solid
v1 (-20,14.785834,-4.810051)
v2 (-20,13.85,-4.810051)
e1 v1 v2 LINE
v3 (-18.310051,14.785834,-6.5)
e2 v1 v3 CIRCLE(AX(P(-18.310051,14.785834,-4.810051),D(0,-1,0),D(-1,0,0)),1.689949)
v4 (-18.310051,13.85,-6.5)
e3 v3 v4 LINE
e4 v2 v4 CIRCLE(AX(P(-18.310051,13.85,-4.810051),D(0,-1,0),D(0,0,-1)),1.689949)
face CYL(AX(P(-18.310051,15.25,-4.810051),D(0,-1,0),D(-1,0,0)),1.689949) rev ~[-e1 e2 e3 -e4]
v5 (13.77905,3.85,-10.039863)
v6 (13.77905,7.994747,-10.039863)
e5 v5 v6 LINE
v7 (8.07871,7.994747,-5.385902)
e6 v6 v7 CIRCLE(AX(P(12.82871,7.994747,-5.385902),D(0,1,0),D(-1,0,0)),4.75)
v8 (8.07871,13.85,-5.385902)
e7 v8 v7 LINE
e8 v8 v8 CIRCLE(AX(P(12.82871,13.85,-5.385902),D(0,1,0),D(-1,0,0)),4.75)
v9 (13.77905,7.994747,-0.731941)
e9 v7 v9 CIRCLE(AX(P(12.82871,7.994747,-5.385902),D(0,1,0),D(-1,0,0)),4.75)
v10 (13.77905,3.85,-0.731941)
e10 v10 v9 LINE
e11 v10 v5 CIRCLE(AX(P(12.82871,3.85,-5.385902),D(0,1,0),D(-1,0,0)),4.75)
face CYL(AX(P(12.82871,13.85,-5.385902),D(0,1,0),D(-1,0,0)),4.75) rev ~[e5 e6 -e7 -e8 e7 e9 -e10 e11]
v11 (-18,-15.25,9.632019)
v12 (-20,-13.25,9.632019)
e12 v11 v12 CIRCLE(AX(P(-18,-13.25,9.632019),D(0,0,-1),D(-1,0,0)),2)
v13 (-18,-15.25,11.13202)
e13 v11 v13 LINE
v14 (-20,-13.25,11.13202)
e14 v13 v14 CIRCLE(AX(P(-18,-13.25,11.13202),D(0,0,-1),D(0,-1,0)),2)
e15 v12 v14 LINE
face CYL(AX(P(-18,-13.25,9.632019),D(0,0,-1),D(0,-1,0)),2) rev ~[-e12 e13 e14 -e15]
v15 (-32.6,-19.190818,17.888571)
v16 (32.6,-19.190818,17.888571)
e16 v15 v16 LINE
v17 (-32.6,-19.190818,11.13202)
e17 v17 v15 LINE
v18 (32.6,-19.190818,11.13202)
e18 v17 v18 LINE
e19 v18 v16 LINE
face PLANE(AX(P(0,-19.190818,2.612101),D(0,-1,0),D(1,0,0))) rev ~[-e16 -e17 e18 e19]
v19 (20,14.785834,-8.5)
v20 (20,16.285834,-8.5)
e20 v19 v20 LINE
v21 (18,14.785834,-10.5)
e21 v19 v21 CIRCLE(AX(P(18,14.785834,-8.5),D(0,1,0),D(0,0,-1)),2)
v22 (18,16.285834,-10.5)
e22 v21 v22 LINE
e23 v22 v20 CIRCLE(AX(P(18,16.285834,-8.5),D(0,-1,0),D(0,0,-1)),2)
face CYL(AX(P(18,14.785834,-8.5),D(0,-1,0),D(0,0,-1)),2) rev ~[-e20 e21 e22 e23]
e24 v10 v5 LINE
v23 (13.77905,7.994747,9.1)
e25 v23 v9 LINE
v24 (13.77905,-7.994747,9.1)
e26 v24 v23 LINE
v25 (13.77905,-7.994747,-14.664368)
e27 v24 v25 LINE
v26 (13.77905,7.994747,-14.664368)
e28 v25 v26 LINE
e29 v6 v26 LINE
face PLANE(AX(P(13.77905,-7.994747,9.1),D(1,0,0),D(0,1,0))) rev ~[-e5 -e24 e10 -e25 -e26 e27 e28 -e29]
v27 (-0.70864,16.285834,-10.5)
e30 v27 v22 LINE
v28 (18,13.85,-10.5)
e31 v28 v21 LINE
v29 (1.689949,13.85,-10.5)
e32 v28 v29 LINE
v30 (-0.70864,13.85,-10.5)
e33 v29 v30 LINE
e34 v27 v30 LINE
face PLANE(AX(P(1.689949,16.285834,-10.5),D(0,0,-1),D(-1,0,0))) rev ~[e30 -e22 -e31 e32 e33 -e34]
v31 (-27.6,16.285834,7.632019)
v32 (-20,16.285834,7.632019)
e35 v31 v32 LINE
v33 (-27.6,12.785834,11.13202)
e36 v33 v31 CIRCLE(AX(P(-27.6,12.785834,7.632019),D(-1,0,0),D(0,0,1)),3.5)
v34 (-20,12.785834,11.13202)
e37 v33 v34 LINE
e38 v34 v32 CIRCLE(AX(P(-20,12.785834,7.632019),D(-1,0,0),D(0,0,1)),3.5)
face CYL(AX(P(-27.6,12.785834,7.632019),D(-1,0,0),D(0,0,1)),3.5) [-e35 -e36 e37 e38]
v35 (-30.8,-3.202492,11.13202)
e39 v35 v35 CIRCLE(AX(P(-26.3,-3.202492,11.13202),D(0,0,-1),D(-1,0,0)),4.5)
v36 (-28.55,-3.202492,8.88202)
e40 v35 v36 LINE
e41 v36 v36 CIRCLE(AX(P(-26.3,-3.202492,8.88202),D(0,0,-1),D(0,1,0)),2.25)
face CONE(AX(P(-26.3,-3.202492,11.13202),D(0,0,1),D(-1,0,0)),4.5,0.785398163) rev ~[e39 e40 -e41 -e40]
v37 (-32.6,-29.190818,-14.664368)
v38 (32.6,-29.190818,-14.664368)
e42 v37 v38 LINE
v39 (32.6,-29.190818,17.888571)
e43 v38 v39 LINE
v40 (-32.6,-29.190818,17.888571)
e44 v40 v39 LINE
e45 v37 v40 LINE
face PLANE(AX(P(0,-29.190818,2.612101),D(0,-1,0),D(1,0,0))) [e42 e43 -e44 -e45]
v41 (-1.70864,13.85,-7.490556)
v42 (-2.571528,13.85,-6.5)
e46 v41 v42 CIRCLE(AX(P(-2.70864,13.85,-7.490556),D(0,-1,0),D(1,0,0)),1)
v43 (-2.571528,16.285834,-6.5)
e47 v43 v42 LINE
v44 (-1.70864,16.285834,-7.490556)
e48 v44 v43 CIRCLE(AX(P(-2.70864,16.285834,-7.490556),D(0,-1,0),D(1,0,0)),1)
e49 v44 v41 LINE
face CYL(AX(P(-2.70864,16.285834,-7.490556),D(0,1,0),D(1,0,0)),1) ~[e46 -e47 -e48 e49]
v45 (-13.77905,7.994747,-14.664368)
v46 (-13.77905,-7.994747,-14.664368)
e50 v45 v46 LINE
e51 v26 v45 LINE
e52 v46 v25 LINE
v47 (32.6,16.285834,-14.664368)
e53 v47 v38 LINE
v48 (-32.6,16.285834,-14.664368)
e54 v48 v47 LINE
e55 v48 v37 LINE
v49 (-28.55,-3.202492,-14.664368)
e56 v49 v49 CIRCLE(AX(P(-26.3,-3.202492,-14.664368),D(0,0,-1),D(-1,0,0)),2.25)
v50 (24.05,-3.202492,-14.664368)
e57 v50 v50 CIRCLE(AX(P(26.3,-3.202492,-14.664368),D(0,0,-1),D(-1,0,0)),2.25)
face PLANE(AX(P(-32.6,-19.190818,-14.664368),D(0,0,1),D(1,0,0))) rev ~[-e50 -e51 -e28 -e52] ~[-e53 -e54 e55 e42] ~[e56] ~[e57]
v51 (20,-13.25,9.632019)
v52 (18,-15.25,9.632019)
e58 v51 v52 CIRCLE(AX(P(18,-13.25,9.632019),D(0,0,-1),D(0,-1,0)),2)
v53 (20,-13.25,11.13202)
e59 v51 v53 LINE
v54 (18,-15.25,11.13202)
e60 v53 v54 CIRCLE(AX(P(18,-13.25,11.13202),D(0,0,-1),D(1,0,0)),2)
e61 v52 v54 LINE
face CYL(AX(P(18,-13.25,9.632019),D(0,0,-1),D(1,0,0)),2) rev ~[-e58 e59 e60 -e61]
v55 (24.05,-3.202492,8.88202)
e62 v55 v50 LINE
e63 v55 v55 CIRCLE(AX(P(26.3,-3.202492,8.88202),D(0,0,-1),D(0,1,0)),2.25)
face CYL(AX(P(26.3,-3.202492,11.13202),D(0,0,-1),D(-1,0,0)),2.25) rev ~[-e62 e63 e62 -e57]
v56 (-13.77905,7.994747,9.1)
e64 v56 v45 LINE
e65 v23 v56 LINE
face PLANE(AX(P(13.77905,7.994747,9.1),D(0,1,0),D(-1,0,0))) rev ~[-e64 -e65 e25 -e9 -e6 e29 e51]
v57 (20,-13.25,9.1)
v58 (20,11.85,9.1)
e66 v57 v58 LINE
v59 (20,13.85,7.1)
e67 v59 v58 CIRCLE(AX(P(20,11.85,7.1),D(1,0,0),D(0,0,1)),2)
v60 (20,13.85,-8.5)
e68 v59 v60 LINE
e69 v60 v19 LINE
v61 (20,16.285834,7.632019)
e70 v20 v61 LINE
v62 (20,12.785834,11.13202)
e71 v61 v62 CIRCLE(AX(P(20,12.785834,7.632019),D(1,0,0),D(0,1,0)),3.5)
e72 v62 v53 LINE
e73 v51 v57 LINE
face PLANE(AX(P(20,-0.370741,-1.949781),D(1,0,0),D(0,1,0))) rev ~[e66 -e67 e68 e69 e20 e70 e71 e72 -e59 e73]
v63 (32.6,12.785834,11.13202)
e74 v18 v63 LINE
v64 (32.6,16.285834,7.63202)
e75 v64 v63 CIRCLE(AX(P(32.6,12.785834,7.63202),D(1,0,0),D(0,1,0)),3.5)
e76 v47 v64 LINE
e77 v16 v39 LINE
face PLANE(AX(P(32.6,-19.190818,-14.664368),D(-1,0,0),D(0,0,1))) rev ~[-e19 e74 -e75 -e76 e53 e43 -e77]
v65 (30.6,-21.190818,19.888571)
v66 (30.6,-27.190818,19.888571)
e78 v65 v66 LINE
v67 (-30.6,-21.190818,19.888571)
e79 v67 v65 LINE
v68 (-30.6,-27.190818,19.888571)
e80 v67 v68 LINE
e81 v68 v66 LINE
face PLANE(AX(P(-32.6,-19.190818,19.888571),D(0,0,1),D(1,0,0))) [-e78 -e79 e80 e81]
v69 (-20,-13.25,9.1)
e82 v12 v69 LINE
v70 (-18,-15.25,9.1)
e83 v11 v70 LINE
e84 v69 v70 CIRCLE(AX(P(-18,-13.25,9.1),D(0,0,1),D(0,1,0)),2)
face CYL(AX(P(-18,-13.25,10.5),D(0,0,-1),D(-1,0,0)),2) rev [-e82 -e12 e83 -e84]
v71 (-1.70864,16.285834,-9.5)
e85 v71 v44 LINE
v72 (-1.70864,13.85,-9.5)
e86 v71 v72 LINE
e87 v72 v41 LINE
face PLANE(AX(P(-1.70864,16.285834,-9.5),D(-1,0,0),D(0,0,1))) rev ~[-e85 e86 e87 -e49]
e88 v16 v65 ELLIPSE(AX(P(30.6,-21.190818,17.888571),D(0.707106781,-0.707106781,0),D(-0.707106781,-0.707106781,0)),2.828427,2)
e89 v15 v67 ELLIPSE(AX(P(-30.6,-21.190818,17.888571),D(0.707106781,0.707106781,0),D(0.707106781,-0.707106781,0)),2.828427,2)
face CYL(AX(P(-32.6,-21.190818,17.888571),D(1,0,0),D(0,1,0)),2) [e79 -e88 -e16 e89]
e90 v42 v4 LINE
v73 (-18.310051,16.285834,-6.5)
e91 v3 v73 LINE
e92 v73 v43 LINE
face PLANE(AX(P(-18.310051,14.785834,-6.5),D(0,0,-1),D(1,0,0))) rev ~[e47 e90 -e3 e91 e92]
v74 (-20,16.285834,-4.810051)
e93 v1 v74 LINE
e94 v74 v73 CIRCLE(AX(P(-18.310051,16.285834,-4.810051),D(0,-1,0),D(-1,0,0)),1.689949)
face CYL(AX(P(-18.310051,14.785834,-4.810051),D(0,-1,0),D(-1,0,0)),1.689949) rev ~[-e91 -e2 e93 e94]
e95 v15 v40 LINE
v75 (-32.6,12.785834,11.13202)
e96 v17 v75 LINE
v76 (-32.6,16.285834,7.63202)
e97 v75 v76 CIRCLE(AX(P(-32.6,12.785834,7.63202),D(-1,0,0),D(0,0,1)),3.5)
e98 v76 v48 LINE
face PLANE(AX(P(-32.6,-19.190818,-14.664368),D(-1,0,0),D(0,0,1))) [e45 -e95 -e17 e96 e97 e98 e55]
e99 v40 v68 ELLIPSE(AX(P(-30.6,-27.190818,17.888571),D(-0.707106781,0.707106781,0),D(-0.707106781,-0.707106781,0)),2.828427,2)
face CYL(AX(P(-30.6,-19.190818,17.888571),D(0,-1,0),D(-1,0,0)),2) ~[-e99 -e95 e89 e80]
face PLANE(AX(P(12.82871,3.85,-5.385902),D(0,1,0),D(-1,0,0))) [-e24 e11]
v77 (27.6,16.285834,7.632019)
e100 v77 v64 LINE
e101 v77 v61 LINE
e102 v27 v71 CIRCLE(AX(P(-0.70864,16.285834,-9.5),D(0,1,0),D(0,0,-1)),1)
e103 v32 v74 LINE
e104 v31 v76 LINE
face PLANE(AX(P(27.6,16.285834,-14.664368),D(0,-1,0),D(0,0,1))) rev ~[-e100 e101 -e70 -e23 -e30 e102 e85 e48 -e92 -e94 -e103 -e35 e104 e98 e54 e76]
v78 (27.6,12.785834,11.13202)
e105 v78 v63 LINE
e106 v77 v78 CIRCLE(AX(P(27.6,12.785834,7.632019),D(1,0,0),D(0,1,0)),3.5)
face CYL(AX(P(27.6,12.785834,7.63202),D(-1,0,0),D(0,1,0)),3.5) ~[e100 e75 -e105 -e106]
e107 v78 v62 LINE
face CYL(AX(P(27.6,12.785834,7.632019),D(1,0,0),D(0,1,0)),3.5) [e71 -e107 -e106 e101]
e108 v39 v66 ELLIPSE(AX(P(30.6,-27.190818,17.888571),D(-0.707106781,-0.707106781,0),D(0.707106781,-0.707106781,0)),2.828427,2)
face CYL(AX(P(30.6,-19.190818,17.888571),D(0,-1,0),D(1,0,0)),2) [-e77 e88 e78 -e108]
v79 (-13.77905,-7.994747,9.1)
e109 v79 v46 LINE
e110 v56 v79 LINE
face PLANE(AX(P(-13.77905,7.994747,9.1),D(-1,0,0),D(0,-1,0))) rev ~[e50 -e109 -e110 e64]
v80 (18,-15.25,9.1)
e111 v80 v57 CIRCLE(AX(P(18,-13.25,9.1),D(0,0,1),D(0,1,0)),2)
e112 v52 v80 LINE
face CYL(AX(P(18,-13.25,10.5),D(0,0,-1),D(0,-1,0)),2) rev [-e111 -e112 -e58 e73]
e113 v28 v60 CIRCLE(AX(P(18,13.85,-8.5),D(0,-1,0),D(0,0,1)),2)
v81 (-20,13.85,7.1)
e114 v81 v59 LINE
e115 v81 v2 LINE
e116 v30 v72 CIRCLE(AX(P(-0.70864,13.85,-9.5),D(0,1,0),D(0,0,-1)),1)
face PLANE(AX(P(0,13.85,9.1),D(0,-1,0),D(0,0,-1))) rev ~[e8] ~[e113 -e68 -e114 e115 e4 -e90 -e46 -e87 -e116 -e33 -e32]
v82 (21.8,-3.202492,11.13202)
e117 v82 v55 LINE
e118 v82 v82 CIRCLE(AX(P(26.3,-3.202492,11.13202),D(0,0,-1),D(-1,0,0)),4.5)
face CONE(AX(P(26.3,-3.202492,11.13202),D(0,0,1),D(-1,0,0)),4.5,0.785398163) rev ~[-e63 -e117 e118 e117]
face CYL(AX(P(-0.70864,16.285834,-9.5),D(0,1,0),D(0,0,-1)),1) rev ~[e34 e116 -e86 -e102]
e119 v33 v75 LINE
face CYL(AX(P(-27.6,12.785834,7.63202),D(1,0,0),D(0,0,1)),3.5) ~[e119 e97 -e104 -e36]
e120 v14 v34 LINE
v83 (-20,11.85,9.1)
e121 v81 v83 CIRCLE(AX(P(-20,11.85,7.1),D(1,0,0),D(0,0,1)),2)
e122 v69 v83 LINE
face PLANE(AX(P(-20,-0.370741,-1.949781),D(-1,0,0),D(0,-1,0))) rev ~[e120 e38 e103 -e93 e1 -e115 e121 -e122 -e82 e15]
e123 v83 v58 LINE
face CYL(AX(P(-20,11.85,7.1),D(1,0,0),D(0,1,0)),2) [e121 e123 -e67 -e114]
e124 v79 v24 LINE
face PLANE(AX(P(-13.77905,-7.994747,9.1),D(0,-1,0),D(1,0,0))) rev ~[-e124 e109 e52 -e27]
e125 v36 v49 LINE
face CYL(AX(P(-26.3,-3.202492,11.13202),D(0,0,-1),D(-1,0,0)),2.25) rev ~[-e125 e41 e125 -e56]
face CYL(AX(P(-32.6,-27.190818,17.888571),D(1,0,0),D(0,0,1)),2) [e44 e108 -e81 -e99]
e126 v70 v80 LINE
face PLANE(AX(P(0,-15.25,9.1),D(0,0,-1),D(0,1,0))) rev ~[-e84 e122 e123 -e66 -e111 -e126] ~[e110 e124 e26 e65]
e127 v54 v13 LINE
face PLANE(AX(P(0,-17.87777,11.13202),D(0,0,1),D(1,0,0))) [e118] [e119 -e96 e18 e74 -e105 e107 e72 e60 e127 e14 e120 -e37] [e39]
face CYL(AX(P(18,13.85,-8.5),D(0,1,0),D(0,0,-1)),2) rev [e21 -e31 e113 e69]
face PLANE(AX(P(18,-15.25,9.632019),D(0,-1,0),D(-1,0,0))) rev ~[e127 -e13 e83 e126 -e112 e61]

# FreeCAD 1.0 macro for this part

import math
import FreeCAD as App
import Part
import Sketcher


def edges_at(feature, points):
    """Names of the edges that pass closest to the given points."""
    edges = feature.Shape.Edges
    near = lambda p: min(range(len(edges)), key=lambda i: edges[i].distToShape(Part.Vertex(*p))[0])
    return sorted({f"Edge{near(p) + 1}" for p in points})


def add_polygon(sketch, points):
    """Adds a closed chain of lines whose ends are joined by coincident constraints."""
    first, n = sketch.GeometryCount, len(points)
    for a, b in zip(points, points[1:] + points[:1]):
        sketch.addGeometry(Part.LineSegment(App.Vector(*a, 0), App.Vector(*b, 0)), False)
    for i in range(n):
        sketch.addConstraint(Sketcher.Constraint("Coincident", first + i, 2, first + (i + 1) % n, 1))

doc = App.newDocument("Part")
body = doc.addObject("PartDesign::Body", "Body")

# Sketch on YZ plane
sketch1 = body.newObject("Sketcher::SketchObject", "Sketch")
sketch1.AttachmentSupport = (doc.getObject("YZ_Plane"), [""])
sketch1.MapMode = "FlatFace"
add_polygon(sketch1, [(15.25, 10.5), (-15.25, 10.5), (-15.25, 9.1), (13.85, 9.1), (13.85, -10.5), (15.25, -10.5)])  # lines 0-5
sketch1.addConstraint([
    Sketcher.Constraint("Horizontal", 0),
    Sketcher.Constraint("Vertical", 1),
    Sketcher.Constraint("Horizontal", 2),
    Sketcher.Constraint("Vertical", 3),
    Sketcher.Constraint("Horizontal", 4),
    Sketcher.Constraint("Vertical", 5),
    Sketcher.Constraint("Symmetric", 0, 2, 4, 2, -1, 1),
    Sketcher.Constraint("Equal", 4, 1),
    Sketcher.Constraint("DistanceY", 5, 1, 5, 2, 21.0),
    Sketcher.Constraint("DistanceX", 0, 2, 0, 1, 30.5),
    Sketcher.Constraint("DistanceX", 2, 1, 2, 2, 29.1),
])
pad1 = body.newObject("PartDesign::Pad", "Pad")
pad1.Profile = sketch1
pad1.Length = 40
pad1.Midplane = True
doc.recompute()

fillet = body.newObject("PartDesign::Fillet", "Fillet")
fillet.Base = (pad1, edges_at(pad1, [(0, 13.85, 9.1)]))
fillet.Radius = 2
doc.recompute()

fillet2 = body.newObject("PartDesign::Fillet", "Fillet001")
fillet2.Base = (fillet, edges_at(fillet, [(0, 15.25, 10.5)]))
fillet2.Radius = 3
doc.recompute()

fillet3 = body.newObject("PartDesign::Fillet", "Fillet002")
fillet3.Base = (fillet2, edges_at(fillet2, [(20, 14.55, -10.5), (20, -15.25, 9.8), (-20, -15.25, 9.8)]))
fillet3.Radius = 2

# Sketch on XZ plane
sketch2 = body.newObject("Sketcher::SketchObject", "Sketch001")
sketch2.AttachmentSupport = (doc.getObject("XZ_Plane"), [""])
sketch2.MapMode = "FlatFace"
sketch2.AttachmentOffset = App.Placement(App.Vector(0, 0, -15.25), App.Rotation())
add_polygon(sketch2, [(0, -6.5), (0, -10.5), (-20, -10.5), (-20, -6.5)])  # lines 0-3
sketch2.addConstraint([
    Sketcher.Constraint("Vertical", 0),
    Sketcher.Constraint("Horizontal", 1),
    Sketcher.Constraint("Vertical", 2),
    Sketcher.Constraint("Horizontal", 3),
    Sketcher.Constraint("PointOnObject", 0, 2, -2),
    Sketcher.Constraint("DistanceX", 1, 2, 1, 1, 20.0),
    Sketcher.Constraint("DistanceY", 0, 2, 0, 1, 4.0),
    Sketcher.Constraint("DistanceY", 0, 2, -1, 1, 10.5),
])
pocket1 = body.newObject("PartDesign::Pocket", "Pocket")
pocket1.Profile = sketch2
pocket1.Length = 8.3
pocket1.Reversed = True
doc.recompute()

fillet4 = body.newObject("PartDesign::Fillet", "Fillet003")
fillet4.Base = (pocket1, edges_at(pocket1, [(-20, 14.55, -6.5), (0, 14.55, -10.5), (0, 14.55, -6.5)]))
fillet4.Radius = 1.689949
body2 = doc.addObject("PartDesign::Body", "Body001")

# Sketch on YZ plane
sketch3 = body2.newObject("Sketcher::SketchObject", "Sketch002")
sketch3.AttachmentSupport = (doc.getObject("YZ_Plane001"), [""])
sketch3.MapMode = "FlatFace"
sketch3.addGeometry([
    Part.LineSegment(App.Vector(12.785834, 9.632019, 0), App.Vector(-16.564721, 9.632019, 0)),  # 0
    Part.LineSegment(App.Vector(-16.564721, 9.632019, 0), App.Vector(-16.564721, -14.664368, 0)),  # 1
    Part.LineSegment(App.Vector(-16.564721, -14.664368, 0), App.Vector(14.785834, -14.664368, 0)),  # 2
    Part.LineSegment(App.Vector(14.785834, -14.664368, 0), App.Vector(14.785834, 7.632019, 0)),  # 3
    Part.ArcOfCircle(Part.Circle(App.Vector(12.785834, 7.632019, 0), App.Vector(0, 0, 1), 2), math.radians(0), math.radians(90)),  # 4
], False)
sketch3.addConstraint([
    Sketcher.Constraint("Coincident", 0, 2, 1, 1),
    Sketcher.Constraint("Coincident", 1, 2, 2, 1),
    Sketcher.Constraint("Coincident", 2, 2, 3, 1),
    Sketcher.Constraint("Tangent", 3, 2, 4, 1),
    Sketcher.Constraint("Tangent", 4, 2, 0, 1),
    Sketcher.Constraint("Horizontal", 0),
    Sketcher.Constraint("Vertical", 1),
    Sketcher.Constraint("Horizontal", 2),
    Sketcher.Constraint("Vertical", 3),
    Sketcher.Constraint("Radius", 4, 2.0),
    Sketcher.Constraint("DistanceX", 0, 2, 0, 1, 29.350555),
    Sketcher.Constraint("DistanceY", 1, 2, 1, 1, 24.296387),
    Sketcher.Constraint("DistanceY", -1, 1, 4, 3, 7.632019),
    Sketcher.Constraint("DistanceX", 0, 2, -1, 1, 16.564721),
])
pad2 = body2.newObject("PartDesign::Pad", "Pad001")
pad2.Profile = sketch3
pad2.Length = 55.2
pad2.Midplane = True
doc.recompute()

boolean = body2.newObject("PartDesign::Boolean", "Boolean")
boolean.Type = "Cut"
boolean.addObjects([body])

# Sketch on XZ plane
sketch4 = body2.newObject("Sketcher::SketchObject", "Sketch003")
sketch4.AttachmentSupport = (doc.getObject("XZ_Plane001"), [""])
sketch4.MapMode = "FlatFace"
sketch4.AttachmentOffset = App.Placement(App.Vector(0, 0, -13.85), App.Rotation())
sketch4.addGeometry(Part.Circle(App.Vector(12.82871, -5.385902, 0), App.Vector(0, 0, 1), 4.75), False)
sketch4.addConstraint([
    Sketcher.Constraint("Diameter", 0, 9.5),
    Sketcher.Constraint("DistanceY", 0, 3, -1, 1, 5.385902),
    Sketcher.Constraint("DistanceX", -1, 1, 0, 3, 12.82871),
])
pocket2 = body2.newObject("PartDesign::Pocket", "Pocket001")
pocket2.Profile = sketch4
pocket2.Length = 10
pocket2.Reversed = True

# Sketch on YZ plane
sketch5 = body2.newObject("Sketcher::SketchObject", "Sketch004")
sketch5.AttachmentSupport = (doc.getObject("YZ_Plane001"), [""])
sketch5.MapMode = "FlatFace"
sketch5.AttachmentOffset = App.Placement(App.Vector(0, 0, 27.6), App.Rotation())
sketch5.addGeometry([
    Part.LineSegment(App.Vector(16.285834, -14.664368, 0), App.Vector(16.285834, 7.632019, 0)),  # 0
    Part.ArcOfCircle(Part.Circle(App.Vector(12.785834, 7.632019, 0), App.Vector(0, 0, 1), 3.5), math.radians(0), math.radians(90)),  # 1
    Part.LineSegment(App.Vector(12.785834, 11.13202, 0), App.Vector(-16.564721, 11.13202, 0)),  # 2
    Part.LineSegment(App.Vector(-16.564721, 11.13202, 0), App.Vector(-16.564721, -14.664368, 0)),  # 3
    Part.LineSegment(App.Vector(-16.564721, -14.664368, 0), App.Vector(16.285834, -14.664368, 0)),  # 4
], False)
sketch5.addConstraint([
    Sketcher.Constraint("Tangent", 0, 2, 1, 1),
    Sketcher.Constraint("Tangent", 1, 2, 2, 1),
    Sketcher.Constraint("Coincident", 2, 2, 3, 1),
    Sketcher.Constraint("Coincident", 3, 2, 4, 1),
    Sketcher.Constraint("Coincident", 4, 2, 0, 1),
    Sketcher.Constraint("Vertical", 0),
    Sketcher.Constraint("Horizontal", 2),
    Sketcher.Constraint("Vertical", 3),
    Sketcher.Constraint("Horizontal", 4),
    Sketcher.Constraint("Radius", 1, 3.5),
    Sketcher.Constraint("DistanceX", 2, 2, 2, 1, 29.350555),
    Sketcher.Constraint("DistanceY", 0, 1, 0, 2, 22.296387),
    Sketcher.Constraint("DistanceY", -1, 1, 1, 3, 7.632019),
    Sketcher.Constraint("DistanceX", 2, 2, -1, 1, 16.564721),
])
pad3 = body2.newObject("PartDesign::Pad", "Pad002")
pad3.Profile = sketch5
pad3.Length = 7.6
pad3.Reversed = True

# Sketch on YZ plane
sketch6 = body2.newObject("Sketcher::SketchObject", "Sketch005")
sketch6.AttachmentSupport = (doc.getObject("YZ_Plane001"), [""])
sketch6.MapMode = "FlatFace"
sketch6.AttachmentOffset = App.Placement(App.Vector(0, 0, -27.6), App.Rotation())
sketch6.addGeometry([
    Part.ArcOfCircle(Part.Circle(App.Vector(12.785834, 7.632019, 0), App.Vector(0, 0, 1), 3.5), math.radians(0), math.radians(90)),  # 0
    Part.LineSegment(App.Vector(16.285834, 7.632019, 0), App.Vector(16.285834, -14.664368, 0)),  # 1
    Part.LineSegment(App.Vector(16.285834, -14.664368, 0), App.Vector(-16.564721, -14.664368, 0)),  # 2
    Part.LineSegment(App.Vector(-16.564721, -14.664368, 0), App.Vector(-16.564721, 11.13202, 0)),  # 3
    Part.LineSegment(App.Vector(-16.564721, 11.13202, 0), App.Vector(12.785834, 11.13202, 0)),  # 4
], False)
sketch6.addConstraint([
    Sketcher.Constraint("Tangent", 0, 1, 1, 1),
    Sketcher.Constraint("Coincident", 1, 2, 2, 1),
    Sketcher.Constraint("Coincident", 2, 2, 3, 1),
    Sketcher.Constraint("Coincident", 3, 2, 4, 1),
    Sketcher.Constraint("Tangent", 4, 2, 0, 2),
    Sketcher.Constraint("Vertical", 1),
    Sketcher.Constraint("Horizontal", 2),
    Sketcher.Constraint("Vertical", 3),
    Sketcher.Constraint("Horizontal", 4),
    Sketcher.Constraint("Radius", 0, 3.5),
    Sketcher.Constraint("DistanceX", 2, 2, 2, 1, 32.850555),
    Sketcher.Constraint("DistanceY", 1, 2, 1, 1, 22.296387),
    Sketcher.Constraint("DistanceY", -1, 1, 0, 3, 7.632019),
    Sketcher.Constraint("DistanceX", 2, 2, -1, 1, 16.564721),
])
pad4 = body2.newObject("PartDesign::Pad", "Pad003")
pad4.Profile = sketch6
pad4.Length = 7.6

# Sketch on XY plane
sketch7 = body2.newObject("Sketcher::SketchObject", "Sketch006")
sketch7.AttachmentSupport = (doc.getObject("XY_Plane001"), [""])
sketch7.MapMode = "FlatFace"
sketch7.AttachmentOffset = App.Placement(App.Vector(0, 0, 9.632019), App.Rotation())
sketch7.addGeometry([
    Part.LineSegment(App.Vector(-20, -16.564721, 0), App.Vector(20, -16.564721, 0)),  # 0
    Part.LineSegment(App.Vector(20, -16.564721, 0), App.Vector(20, -13.25, 0)),  # 1
    Part.ArcOfCircle(Part.Circle(App.Vector(18, -13.25, 0), App.Vector(0, 0, 1), 2), math.radians(-90), math.radians(0)),  # 2
    Part.LineSegment(App.Vector(18, -15.25, 0), App.Vector(-18, -15.25, 0)),  # 3
    Part.ArcOfCircle(Part.Circle(App.Vector(-18, -13.25, 0), App.Vector(0, 0, 1), 2), math.radians(180), math.radians(270)),  # 4
    Part.LineSegment(App.Vector(-20, -13.25, 0), App.Vector(-20, -16.564721, 0)),  # 5
], False)
sketch7.addConstraint([
    Sketcher.Constraint("Coincident", 0, 2, 1, 1),
    Sketcher.Constraint("Tangent", 1, 2, 2, 2),
    Sketcher.Constraint("Tangent", 2, 1, 3, 1),
    Sketcher.Constraint("Tangent", 3, 2, 4, 2),
    Sketcher.Constraint("Tangent", 4, 1, 5, 1),
    Sketcher.Constraint("Coincident", 5, 2, 0, 1),
    Sketcher.Constraint("Horizontal", 0),
    Sketcher.Constraint("Vertical", 1),
    Sketcher.Constraint("Horizontal", 3),
    Sketcher.Constraint("Vertical", 5),
    Sketcher.Constraint("Equal", 2, 4),
    Sketcher.Constraint("Radius", 2, 2.0),
    Sketcher.Constraint("DistanceX", 0, 1, 0, 2, 40.0),
    Sketcher.Constraint("DistanceX", -1, 1, 2, 3, 18.0),
    Sketcher.Constraint("DistanceY", 2, 3, -1, 1, 13.25),
    Sketcher.Constraint("DistanceY", 1, 1, 1, 2, 3.314721),
])
pad5 = body2.newObject("PartDesign::Pad", "Pad004")
pad5.Profile = sketch7
pad5.Length = 1.5

# Sketch on XZ plane
sketch8 = body2.newObject("Sketcher::SketchObject", "Sketch007")
sketch8.AttachmentSupport = (doc.getObject("XZ_Plane001"), [""])
sketch8.MapMode = "FlatFace"
sketch8.AttachmentOffset = App.Placement(App.Vector(0, 0, -14.785834), App.Rotation())
sketch8.addGeometry([
    Part.LineSegment(App.Vector(20, -8.5, 0), App.Vector(20, -14.664368, 0)),  # 0
    Part.LineSegment(App.Vector(20, -14.664368, 0), App.Vector(-20, -14.664368, 0)),  # 1
    Part.LineSegment(App.Vector(-20, -14.664368, 0), App.Vector(-20, -4.810051, 0)),  # 2
    Part.ArcOfCircle(Part.Circle(App.Vector(-18.310051, -4.810051, 0), App.Vector(0, 0, 1), 1.689949), math.radians(180), math.radians(270)),  # 3
    Part.LineSegment(App.Vector(-18.310051, -6.5, 0), App.Vector(-1.689949, -6.5, 0)),  # 4
    Part.ArcOfCircle(Part.Circle(App.Vector(-1.689949, -8.189949, 0), App.Vector(0, 0, 1), 1.689949), math.radians(0), math.radians(90)),  # 5
    Part.LineSegment(App.Vector(0, -8.189949, 0), App.Vector(0, -8.810051, 0)),  # 6
    Part.ArcOfCircle(Part.Circle(App.Vector(1.689949, -8.810051, 0), App.Vector(0, 0, 1), 1.689949), math.radians(180), math.radians(270)),  # 7
    Part.LineSegment(App.Vector(1.689949, -10.5, 0), App.Vector(18, -10.5, 0)),  # 8
    Part.ArcOfCircle(Part.Circle(App.Vector(18, -8.5, 0), App.Vector(0, 0, 1), 2), math.radians(-90), math.radians(0)),  # 9
], False)
sketch8.addConstraint([
    Sketcher.Constraint("Coincident", 0, 2, 1, 1),
    Sketcher.Constraint("Coincident", 1, 2, 2, 1),
    Sketcher.Constraint("Tangent", 2, 2, 3, 1),
    Sketcher.Constraint("Tangent", 3, 2, 4, 1),
    Sketcher.Constraint("Tangent", 4, 2, 5, 2),
    Sketcher.Constraint("Tangent", 5, 1, 6, 1),
    Sketcher.Constraint("Tangent", 6, 2, 7, 1),
    Sketcher.Constraint("Tangent", 7, 2, 8, 1),
    Sketcher.Constraint("Tangent", 8, 2, 9, 1),
    Sketcher.Constraint("Tangent", 9, 2, 0, 1),
    Sketcher.Constraint("Vertical", 0),
    Sketcher.Constraint("Horizontal", 1),
    Sketcher.Constraint("Vertical", 2),
    Sketcher.Constraint("Horizontal", 4),
    Sketcher.Constraint("Vertical", 6),
    Sketcher.Constraint("Horizontal", 8),
    Sketcher.Constraint("Equal", 3, 5),
    Sketcher.Constraint("Equal", 5, 7),
    Sketcher.Constraint("PointOnObject", 5, 1, -2),
    Sketcher.Constraint("Radius", 9, 2.0),
    Sketcher.Constraint("DistanceX", 1, 2, 1, 1, 40.0),
    Sketcher.Constraint("DistanceX", -1, 1, 9, 3, 18.0),
    Sketcher.Constraint("DistanceY", 7, 3, 3, 3, 4.0),
    Sketcher.Constraint("DistanceY", 9, 3, -1, 1, 8.5),
    Sketcher.Constraint("Radius", 3, 1.689949),
    Sketcher.Constraint("DistanceY", 0, 2, 0, 1, 6.164368),
])
pad6 = body2.newObject("PartDesign::Pad", "Pad005")
pad6.Profile = sketch8
pad6.Length = 1.5
pad6.Reversed = True

# Sketch on YZ plane
sketch9 = body2.newObject("Sketcher::SketchObject", "Sketch008")
sketch9.AttachmentSupport = (doc.getObject("YZ_Plane001"), [""])
sketch9.MapMode = "FlatFace"
sketch9.AttachmentOffset = App.Placement(App.Vector(0, 0, -27.6), App.Rotation())
sketch9.addGeometry([
    Part.LineSegment(App.Vector(16.285834, -14.664368, 0), App.Vector(-16.564721, -14.664368, 0)),  # 0
    Part.LineSegment(App.Vector(-16.564721, -14.664368, 0), App.Vector(-16.564721, 11.13202, 0)),  # 1
    Part.LineSegment(App.Vector(-16.564721, 11.13202, 0), App.Vector(12.785834, 11.13202, 0)),  # 2
    Part.ArcOfCircle(Part.Circle(App.Vector(12.785834, 7.63202, 0), App.Vector(0, 0, 1), 3.5), math.radians(0), math.radians(90)),  # 3
    Part.LineSegment(App.Vector(16.285834, 7.63202, 0), App.Vector(16.285834, -14.664368, 0)),  # 4
], False)
sketch9.addConstraint([
    Sketcher.Constraint("Coincident", 0, 2, 1, 1),
    Sketcher.Constraint("Coincident", 1, 2, 2, 1),
    Sketcher.Constraint("Tangent", 2, 2, 3, 2),
    Sketcher.Constraint("Tangent", 3, 1, 4, 1),
    Sketcher.Constraint("Coincident", 4, 2, 0, 1),
    Sketcher.Constraint("Horizontal", 0),
    Sketcher.Constraint("Vertical", 1),
    Sketcher.Constraint("Horizontal", 2),
    Sketcher.Constraint("Vertical", 4),
    Sketcher.Constraint("Radius", 3, 3.5),
    Sketcher.Constraint("DistanceX", 0, 2, 0, 1, 32.850555),
    Sketcher.Constraint("DistanceY", 1, 1, 1, 2, 25.796387),
    Sketcher.Constraint("DistanceY", -1, 1, 3, 3, 7.63202),
    Sketcher.Constraint("DistanceX", 0, 2, -1, 1, 16.564721),
])
pad7 = body2.newObject("PartDesign::Pad", "Pad006")
pad7.Profile = sketch9
pad7.Length = 5
pad7.Reversed = True

# Sketch on YZ plane
sketch10 = body2.newObject("Sketcher::SketchObject", "Sketch009")
sketch10.AttachmentSupport = (doc.getObject("YZ_Plane001"), [""])
sketch10.MapMode = "FlatFace"
sketch10.AttachmentOffset = App.Placement(App.Vector(0, 0, 27.6), App.Rotation())
sketch10.addGeometry([
    Part.LineSegment(App.Vector(-16.564721, 11.13202, 0), App.Vector(-16.564721, -14.664368, 0)),  # 0
    Part.LineSegment(App.Vector(-16.564721, -14.664368, 0), App.Vector(16.285834, -14.664368, 0)),  # 1
    Part.LineSegment(App.Vector(16.285834, -14.664368, 0), App.Vector(16.285834, 7.63202, 0)),  # 2
    Part.ArcOfCircle(Part.Circle(App.Vector(12.785834, 7.63202, 0), App.Vector(0, 0, 1), 3.5), math.radians(0), math.radians(90)),  # 3
    Part.LineSegment(App.Vector(12.785834, 11.13202, 0), App.Vector(-16.564721, 11.13202, 0)),  # 4
], False)
sketch10.addConstraint([
    Sketcher.Constraint("Coincident", 0, 2, 1, 1),
    Sketcher.Constraint("Coincident", 1, 2, 2, 1),
    Sketcher.Constraint("Tangent", 2, 2, 3, 1),
    Sketcher.Constraint("Tangent", 3, 2, 4, 1),
    Sketcher.Constraint("Coincident", 4, 2, 0, 1),
    Sketcher.Constraint("Vertical", 0),
    Sketcher.Constraint("Horizontal", 1),
    Sketcher.Constraint("Vertical", 2),
    Sketcher.Constraint("Horizontal", 4),
    Sketcher.Constraint("Radius", 3, 3.5),
    Sketcher.Constraint("DistanceX", 1, 1, 1, 2, 32.850555),
    Sketcher.Constraint("DistanceY", 0, 2, 0, 1, 25.796387),
    Sketcher.Constraint("DistanceY", -1, 1, 3, 3, 7.63202),
    Sketcher.Constraint("DistanceX", 0, 2, -1, 1, 16.564721),
])
pad8 = body2.newObject("PartDesign::Pad", "Pad007")
pad8.Profile = sketch10
pad8.Length = 5

# Sketch on XZ plane
sketch11 = body2.newObject("Sketcher::SketchObject", "Sketch010")
sketch11.AttachmentSupport = (doc.getObject("XZ_Plane001"), [""])
sketch11.MapMode = "FlatFace"
sketch11.AttachmentOffset = App.Placement(App.Vector(0, 0, -16.285834), App.Rotation())
sketch11.addGeometry([
    Part.LineSegment(App.Vector(-1.70864, -9.5, 0), App.Vector(-1.70864, -7.490556, 0)),  # 0
    Part.ArcOfCircle(Part.Circle(App.Vector(-2.70864, -7.490556, 0), App.Vector(0, 0, 1), 1), math.radians(0), math.radians(82.119241)),  # 1
    Part.LineSegment(App.Vector(-2.571528, -6.5, 0), App.Vector(1.689949, -6.5, 0)),  # 2
    Part.LineSegment(App.Vector(1.689949, -6.5, 0), App.Vector(1.689949, -10.5, 0)),  # 3
    Part.LineSegment(App.Vector(1.689949, -10.5, 0), App.Vector(-0.70864, -10.5, 0)),  # 4
    Part.ArcOfCircle(Part.Circle(App.Vector(-0.70864, -9.5, 0), App.Vector(0, 0, 1), 1), math.radians(180), math.radians(270)),  # 5
    Part.ArcOfCircle(Part.Circle(App.Vector(-2.70864, -7.490556, 0), App.Vector(0, 0, 1), 1), math.radians(82.119241), math.radians(97.880759)),  # 6
    Part.LineSegment(App.Vector(-2.571528, -6.5, 0), App.Vector(-2.845752, -6.5, 0)),  # 7
], False)
sketch11.addConstraint([
    Sketcher.Constraint("Tangent", 0, 2, 1, 1),
    Sketcher.Constraint("Coincident", 1, 2, 2, 1),
    Sketcher.Constraint("Coincident", 2, 2, 3, 1),
    Sketcher.Constraint("Coincident", 3, 2, 4, 1),
    Sketcher.Constraint("Tangent", 4, 2, 5, 2),
    Sketcher.Constraint("Tangent", 5, 1, 0, 1),
    Sketcher.Constraint("Coincident", 6, 1, 7, 1),
    Sketcher.Constraint("Coincident", 7, 2, 6, 2),
    Sketcher.Constraint("Vertical", 0),
    Sketcher.Constraint("Horizontal", 2),
    Sketcher.Constraint("Vertical", 3),
    Sketcher.Constraint("Horizontal", 4),
    Sketcher.Constraint("Horizontal", 7),
    Sketcher.Constraint("Coincident", 6, 3, 1, 3),
    Sketcher.Constraint("Coincident", 6, 1, 1, 2),
    Sketcher.Constraint("Equal", 1, 5),
    Sketcher.Constraint("Radius", 1, 1.0),
    Sketcher.Constraint("DistanceY", 3, 2, 3, 1, 4.0),
    Sketcher.Constraint("DistanceY", 5, 3, -1, 1, 9.5),
    Sketcher.Constraint("DistanceX", 4, 2, 4, 1, 2.39859),
    Sketcher.Constraint("DistanceX", 2, 1, 2, 2, 4.261478),
    Sketcher.Constraint("DistanceX", 1, 3, -1, 1, 2.70864),
])
pocket3 = body2.newObject("PartDesign::Pocket", "Pocket002")
pocket3.Profile = sketch11
pocket3.Length = 2.435834
pocket3.Reversed = True

# Sketch on XY plane
sketch12 = body2.newObject("Sketcher::SketchObject", "Sketch011")
sketch12.AttachmentSupport = (doc.getObject("XY_Plane001"), [""])
sketch12.MapMode = "FlatFace"
sketch12.AttachmentOffset = App.Placement(App.Vector(0, 0, 11.13202), App.Rotation())
add_polygon(sketch12, [(-32.6, -16.564721), (-32.6, -19.190818), (32.6, -19.190818), (32.6, -16.564721)])  # lines 0-3
sketch12.addConstraint([
    Sketcher.Constraint("Vertical", 0),
    Sketcher.Constraint("Horizontal", 1),
    Sketcher.Constraint("Vertical", 2),
    Sketcher.Constraint("Horizontal", 3),
    Sketcher.Constraint("DistanceX", 1, 1, 1, 2, 65.2),
    Sketcher.Constraint("DistanceX", 0, 2, -1, 1, 32.6),
    Sketcher.Constraint("DistanceY", 0, 2, 0, 1, 2.626097),
    Sketcher.Constraint("DistanceY", 0, 2, -1, 1, 19.190818),
])
pad9 = body2.newObject("PartDesign::Pad", "Pad008")
pad9.Profile = sketch12
pad9.Length = 25.796387
pad9.Reversed = True

# Sketch on XY plane
sketch13 = body2.newObject("Sketcher::SketchObject", "Sketch012")
sketch13.AttachmentSupport = (doc.getObject("XY_Plane001"), [""])
sketch13.MapMode = "FlatFace"
sketch13.AttachmentOffset = App.Placement(App.Vector(0, 0, 11.13202), App.Rotation())
sketch13.addGeometry([
    Part.Circle(App.Vector(26.3, -3.202492, 0), App.Vector(0, 0, 1), 2.25),
    Part.Circle(App.Vector(-26.3, -3.202492, 0), App.Vector(0, 0, 1), 2.25),
], False)
sketch13.addConstraint([
    Sketcher.Constraint("Equal", 0, 1),
    Sketcher.Constraint("Symmetric", 0, 3, 1, 3, -2),
    Sketcher.Constraint("Diameter", 0, 4.5),
    Sketcher.Constraint("DistanceX", -1, 1, 0, 3, 26.3),
    Sketcher.Constraint("DistanceY", 0, 3, -1, 1, 3.202492),
])
doc.recompute()
hole = body2.newObject("PartDesign::Hole", "Hole")
hole.Profile = sketch13
hole.ThreadType = "None"
hole.Diameter = 4.5
hole.DepthType = "ThroughAll"
hole.HoleCutType = "Countersink"
hole.HoleCutDiameter = 9
hole.HoleCutCountersinkAngle = 90

# Sketch on XY plane
sketch14 = body2.newObject("Sketcher::SketchObject", "Sketch013")
sketch14.AttachmentSupport = (doc.getObject("XY_Plane001"), [""])
sketch14.MapMode = "FlatFace"
sketch14.AttachmentOffset = App.Placement(App.Vector(0, 0, 9.1), App.Rotation())
add_polygon(sketch14, [(-13.77905, -7.994747), (13.77905, -7.994747), (13.77905, 7.994747), (-13.77905, 7.994747)])  # lines 0-3
sketch14.addConstraint([
    Sketcher.Constraint("Horizontal", 0),
    Sketcher.Constraint("Vertical", 1),
    Sketcher.Constraint("Horizontal", 2),
    Sketcher.Constraint("Vertical", 3),
    Sketcher.Constraint("Symmetric", 0, 2, 2, 2, -1, 1),
    Sketcher.Constraint("DistanceX", 0, 1, 0, 2, 27.558099),
    Sketcher.Constraint("DistanceY", 1, 1, 1, 2, 15.989494),
])
pocket4 = body2.newObject("PartDesign::Pocket", "Pocket003")
pocket4.Profile = sketch14
pocket4.Length = 25

# Sketch on XZ plane
sketch15 = body2.newObject("Sketcher::SketchObject", "Sketch014")
sketch15.AttachmentSupport = (doc.getObject("XZ_Plane001"), [""])
sketch15.MapMode = "FlatFace"
sketch15.AttachmentOffset = App.Placement(App.Vector(0, 0, 19.190818), App.Rotation())
add_polygon(sketch15, [(-32.6, 19.888571), (-32.6, -14.664368), (32.6, -14.664368), (32.6, 19.888571)])  # lines 0-3
sketch15.addConstraint([
    Sketcher.Constraint("Vertical", 0),
    Sketcher.Constraint("Horizontal", 1),
    Sketcher.Constraint("Vertical", 2),
    Sketcher.Constraint("Horizontal", 3),
    Sketcher.Constraint("DistanceX", 1, 1, 1, 2, 65.2),
    Sketcher.Constraint("DistanceX", 0, 2, -1, 1, 32.6),
    Sketcher.Constraint("DistanceY", 0, 2, 0, 1, 34.552938),
    Sketcher.Constraint("DistanceY", -1, 1, 2, 2, 19.888571),
])
pad10 = body2.newObject("PartDesign::Pad", "Pad009")
pad10.Profile = sketch15
pad10.Length = 10
doc.recompute()

fillet5 = body2.newObject("PartDesign::Fillet", "Fillet004")
fillet5.Base = (pad10, edges_at(pad10, [
    (32.6, -24.191, 19.889),
    (-32.6, -24.191, 19.889),
    (0, -19.191, 19.889),
    (0, -29.191, 19.889),
]))
fillet5.Radius = 2

doc.recompute()
